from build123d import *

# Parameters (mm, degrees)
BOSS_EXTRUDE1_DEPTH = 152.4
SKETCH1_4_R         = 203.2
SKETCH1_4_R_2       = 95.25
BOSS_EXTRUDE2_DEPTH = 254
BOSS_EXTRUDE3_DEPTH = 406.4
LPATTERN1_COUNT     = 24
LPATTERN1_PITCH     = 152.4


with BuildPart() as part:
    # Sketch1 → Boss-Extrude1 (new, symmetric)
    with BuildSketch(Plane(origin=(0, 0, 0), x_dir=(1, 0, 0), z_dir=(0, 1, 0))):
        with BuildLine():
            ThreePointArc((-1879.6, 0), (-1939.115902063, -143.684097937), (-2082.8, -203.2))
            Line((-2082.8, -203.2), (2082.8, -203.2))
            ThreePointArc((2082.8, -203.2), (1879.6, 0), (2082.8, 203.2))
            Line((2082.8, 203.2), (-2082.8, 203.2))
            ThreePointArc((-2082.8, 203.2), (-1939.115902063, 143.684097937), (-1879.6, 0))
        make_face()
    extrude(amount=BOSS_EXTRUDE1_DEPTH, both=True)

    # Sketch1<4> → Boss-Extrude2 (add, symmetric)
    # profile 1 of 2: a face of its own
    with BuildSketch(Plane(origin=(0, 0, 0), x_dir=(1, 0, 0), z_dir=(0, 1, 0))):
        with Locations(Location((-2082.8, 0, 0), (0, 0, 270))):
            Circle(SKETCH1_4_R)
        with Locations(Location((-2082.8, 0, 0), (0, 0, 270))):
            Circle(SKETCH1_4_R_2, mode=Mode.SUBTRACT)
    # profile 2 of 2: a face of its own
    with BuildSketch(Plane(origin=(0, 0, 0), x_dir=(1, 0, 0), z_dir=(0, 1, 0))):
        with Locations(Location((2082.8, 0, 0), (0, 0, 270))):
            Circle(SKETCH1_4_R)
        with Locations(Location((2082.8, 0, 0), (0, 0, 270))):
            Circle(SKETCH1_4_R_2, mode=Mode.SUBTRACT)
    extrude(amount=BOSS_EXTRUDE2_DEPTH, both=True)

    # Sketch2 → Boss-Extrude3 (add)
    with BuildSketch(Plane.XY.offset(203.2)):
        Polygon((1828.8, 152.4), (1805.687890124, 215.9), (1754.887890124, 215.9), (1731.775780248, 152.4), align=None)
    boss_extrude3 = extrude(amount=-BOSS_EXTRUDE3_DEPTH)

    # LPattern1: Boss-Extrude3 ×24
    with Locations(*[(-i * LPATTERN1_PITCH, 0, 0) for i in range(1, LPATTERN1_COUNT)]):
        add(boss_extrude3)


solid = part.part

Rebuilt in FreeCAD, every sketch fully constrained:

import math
import FreeCAD as App
import Part
import Sketcher

V = App.Vector
Q = App.Units.Quantity


def add_polygon(sketch, points):
    """Adds a closed chain of lines whose ends are joined by coincident constraints."""
    first, n = sketch.GeometryCount, len(points)
    for a, b in zip(points, points[1:] + points[:1]):
        sketch.addGeometry(Part.LineSegment(App.Vector(*a, 0), App.Vector(*b, 0)), False)
    for i in range(n):
        sketch.addConstraint(Sketcher.Constraint("Coincident", first + i, 2, first + (i + 1) % n, 1))

doc = App.newDocument("Part")
body = doc.addObject("PartDesign::Body", "Body")

# Sketch on XZ plane
sketch1 = doc.addObject("Sketcher::SketchObject", "Sketch")
body.addObject(sketch1)
sketch1.AttachmentSupport = (doc.XZ_Plane, [""])
sketch1.MapMode = "FlatFace"
sketch1.addGeometry(Part.ArcOfCircle(Part.Circle(V(-2082.8, 0, 0), V(0, 0, 1), 203.2), math.radians(0), math.radians(90)), False)
sketch1.addGeometry(Part.LineSegment(V(-2082.8, 203.2, 0), V(2082.8, 203.2, 0)), False)
sketch1.addGeometry(Part.ArcOfCircle(Part.Circle(V(2082.8, 0, 0), V(0, 0, 1), 203.2), math.radians(90), math.radians(270)), False)
sketch1.addGeometry(Part.LineSegment(V(2082.8, -203.2, 0), V(-2082.8, -203.2, 0)), False)
sketch1.addGeometry(Part.ArcOfCircle(Part.Circle(V(-2082.8, 0, 0), V(0, 0, 1), 203.2), math.radians(-90), math.radians(0)), False)
sketch1.addConstraint(Sketcher.Constraint("Tangent", 0, 2, 1, 1))
sketch1.addConstraint(Sketcher.Constraint("Tangent", 1, 2, 2, 1))
sketch1.addConstraint(Sketcher.Constraint("Tangent", 2, 2, 3, 1))
sketch1.addConstraint(Sketcher.Constraint("Tangent", 3, 2, 4, 1))
sketch1.addConstraint(Sketcher.Constraint("Tangent", 4, 2, 0, 1))
sketch1.addConstraint(Sketcher.Constraint("Horizontal", 1))
sketch1.addConstraint(Sketcher.Constraint("Horizontal", 3))
sketch1.addConstraint(Sketcher.Constraint("Equal", 0, 2))
sketch1.addConstraint(Sketcher.Constraint("Symmetric", 0, 3, 2, 3, -1, 1))
sketch1.addConstraint(Sketcher.Constraint("PointOnObject", 4, 2, -1))
sketch1.addConstraint(Sketcher.Constraint("Radius", 0, Q("8 in")))
sketch1.addConstraint(Sketcher.Constraint("DistanceX", 1, 1, 1, 2, Q("164 in")))
pad1 = doc.addObject("PartDesign::Pad", "Pad")
body.addObject(pad1)
pad1.Profile = sketch1
pad1.Length = Q("12 in")
pad1.Midplane = True

# Sketch on XZ plane
sketch2 = doc.addObject("Sketcher::SketchObject", "Sketch001")
body.addObject(sketch2)
sketch2.AttachmentSupport = (doc.XZ_Plane, [""])
sketch2.MapMode = "FlatFace"
sketch2.addGeometry(Part.Circle(V(-2082.8, 0, 0), V(0, 0, 1), 203.2), False)
sketch2.addGeometry(Part.Circle(V(-2082.8, 0, 0), V(0, 0, 1), 95.25), False)
sketch2.addGeometry(Part.Circle(V(2082.8, 0, 0), V(0, 0, 1), 203.2), False)
sketch2.addGeometry(Part.Circle(V(2082.8, 0, 0), V(0, 0, 1), 95.25), False)
sketch2.addConstraint(Sketcher.Constraint("Coincident", 1, 3, 0, 3))
sketch2.addConstraint(Sketcher.Constraint("Coincident", 3, 3, 2, 3))
sketch2.addConstraint(Sketcher.Constraint("Equal", 0, 2))
sketch2.addConstraint(Sketcher.Constraint("Equal", 1, 3))
sketch2.addConstraint(Sketcher.Constraint("Symmetric", 0, 3, 2, 3, -1, 1))
sketch2.addConstraint(Sketcher.Constraint("PointOnObject", 0, 3, -1))
sketch2.addConstraint(Sketcher.Constraint("Diameter", 0, Q("16 in")))
sketch2.addConstraint(Sketcher.Constraint("Diameter", 1, Q("7.5 in")))
sketch2.addConstraint(Sketcher.Constraint("DistanceX", 0, 3, -1, 1, Q("82 in")))
pad2 = doc.addObject("PartDesign::Pad", "Pad001")
body.addObject(pad2)
pad2.Profile = sketch2
pad2.Length = Q("20 in")
pad2.Midplane = True

# Sketch on XY plane
sketch3 = doc.addObject("Sketcher::SketchObject", "Sketch002")
body.addObject(sketch3)
sketch3.AttachmentSupport = (doc.XY_Plane, [""])
sketch3.MapMode = "FlatFace"
sketch3.AttachmentOffset = App.Placement(V(0, 0, 8 * 25.4), App.Rotation())
add_polygon(sketch3, [(1828.8, 152.4), (1805.68789, 215.9), (1754.88789, 215.9), (1731.77578, 152.4)])  # lines 0-3
sketch3.addConstraint(Sketcher.Constraint("Horizontal", 1))
sketch3.addConstraint(Sketcher.Constraint("Horizontal", 3))
sketch3.addConstraint(Sketcher.Constraint("Equal", 0, 2))
sketch3.addConstraint(Sketcher.Constraint("DistanceX", 1, 2, 1, 1, Q("2 in")))
sketch3.addConstraint(Sketcher.Constraint("DistanceY", -1, 1, 2, 2, Q("6 in")))
sketch3.addConstraint(Sketcher.Constraint("DistanceX", -1, 1, 3, 2, Q("72 in")))
sketch3.addConstraint(Sketcher.Constraint("Angle", 0, Q("110 deg")))
sketch3.addConstraint(Sketcher.Constraint("DistanceY", -1, 1, 0, 2, Q("8.5 in")))
pad3 = doc.addObject("PartDesign::Pad", "Pad002")
body.addObject(pad3)
pad3.Profile = sketch3
pad3.Length = Q("16 in")
pad3.Reversed = True
doc.recompute()

linearpattern = doc.addObject("PartDesign::LinearPattern", "LinearPattern")
body.addObject(linearpattern)
linearpattern.Originals = [pad3]
linearpattern.Direction = (doc.X_Axis, [""])
linearpattern.Mode = "offset"
linearpattern.Offset = Q("6 in")
linearpattern.Occurrences = 24
linearpattern.Reversed = True
body.Tip = linearpattern

doc.recompute()
